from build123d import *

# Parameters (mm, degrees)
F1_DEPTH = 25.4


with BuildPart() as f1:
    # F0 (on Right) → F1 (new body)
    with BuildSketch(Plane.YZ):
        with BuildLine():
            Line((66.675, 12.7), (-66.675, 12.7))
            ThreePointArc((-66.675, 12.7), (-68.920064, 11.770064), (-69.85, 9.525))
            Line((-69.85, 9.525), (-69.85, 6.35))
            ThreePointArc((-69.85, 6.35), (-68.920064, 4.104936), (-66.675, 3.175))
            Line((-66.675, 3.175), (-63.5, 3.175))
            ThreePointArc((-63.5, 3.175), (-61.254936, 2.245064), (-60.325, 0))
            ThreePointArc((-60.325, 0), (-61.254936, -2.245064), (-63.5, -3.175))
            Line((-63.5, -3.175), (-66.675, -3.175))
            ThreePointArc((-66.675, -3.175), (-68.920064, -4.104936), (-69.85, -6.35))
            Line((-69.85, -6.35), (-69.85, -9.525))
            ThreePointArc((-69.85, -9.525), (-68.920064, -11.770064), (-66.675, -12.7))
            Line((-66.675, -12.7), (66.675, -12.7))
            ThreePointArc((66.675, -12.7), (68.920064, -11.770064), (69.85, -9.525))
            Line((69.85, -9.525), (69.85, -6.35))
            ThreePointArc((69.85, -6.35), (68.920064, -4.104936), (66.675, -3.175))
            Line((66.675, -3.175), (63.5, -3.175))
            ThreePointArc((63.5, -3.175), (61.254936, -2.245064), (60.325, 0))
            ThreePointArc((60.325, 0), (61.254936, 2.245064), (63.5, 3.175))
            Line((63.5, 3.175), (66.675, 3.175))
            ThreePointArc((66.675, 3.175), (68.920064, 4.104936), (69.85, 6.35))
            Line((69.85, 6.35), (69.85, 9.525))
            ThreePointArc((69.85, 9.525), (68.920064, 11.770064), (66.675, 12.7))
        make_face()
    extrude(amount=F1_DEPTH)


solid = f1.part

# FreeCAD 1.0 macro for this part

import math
import FreeCAD as App
import Part
import Sketcher
Q = App.Units.Quantity

doc = App.newDocument("Part")
body = doc.addObject("PartDesign::Body", "Body")

# Sketch on YZ plane
sketch1 = doc.addObject("Sketcher::SketchObject", "Sketch")
body.addObject(sketch1)
sketch1.AttachmentSupport = (doc.YZ_Plane, [""])
sketch1.MapMode = "FlatFace"
sketch1.addGeometry([
    Part.LineSegment(App.Vector(66.7, 12.7, 0), App.Vector(-66.7, 12.7, 0)),  # 0
    Part.ArcOfCircle(Part.Circle(App.Vector(-66.7, 9.5, 0), App.Vector(0, 0, 1), 3.2), math.radians(90), math.radians(180)),  # 1
    Part.LineSegment(App.Vector(-69.8, 9.5, 0), App.Vector(-69.8, 6.3, 0)),  # 2
    Part.ArcOfCircle(Part.Circle(App.Vector(-66.7, 6.4, 0), App.Vector(0, 0, 1), 3.2), math.radians(-180), math.radians(-90)),  # 3
    Part.LineSegment(App.Vector(-66.7, 3.2, 0), App.Vector(-63.5, 3.2, 0)),  # 4
    Part.ArcOfCircle(Part.Circle(App.Vector(-63.5, 0, 0), App.Vector(0, 0, 1), 3.2), math.radians(0), math.radians(90)),  # 5
    Part.ArcOfCircle(Part.Circle(App.Vector(-63.5, 0, 0), App.Vector(0, 0, 1), 3.2), math.radians(-90), math.radians(0)),  # 6
    Part.LineSegment(App.Vector(-63.5, -3.2, 0), App.Vector(-66.7, -3.2, 0)),  # 7
    Part.ArcOfCircle(Part.Circle(App.Vector(-66.7, -6.4, 0), App.Vector(0, 0, 1), 3.2), math.radians(90), math.radians(180)),  # 8
    Part.LineSegment(App.Vector(-69.8, -6.3, 0), App.Vector(-69.8, -9.5, 0)),  # 9
    Part.ArcOfCircle(Part.Circle(App.Vector(-66.7, -9.5, 0), App.Vector(0, 0, 1), 3.2), math.radians(-180), math.radians(-90)),  # 10
    Part.LineSegment(App.Vector(-66.7, -12.7, 0), App.Vector(66.7, -12.7, 0)),  # 11
    Part.ArcOfCircle(Part.Circle(App.Vector(66.7, -9.5, 0), App.Vector(0, 0, 1), 3.2), math.radians(-90), math.radians(0)),  # 12
    Part.LineSegment(App.Vector(69.8, -9.5, 0), App.Vector(69.8, -6.3, 0)),  # 13
    Part.ArcOfCircle(Part.Circle(App.Vector(66.7, -6.4, 0), App.Vector(0, 0, 1), 3.2), math.radians(0), math.radians(90)),  # 14
    Part.LineSegment(App.Vector(66.7, -3.2, 0), App.Vector(63.5, -3.2, 0)),  # 15
    Part.ArcOfCircle(Part.Circle(App.Vector(63.5, 0, 0), App.Vector(0, 0, 1), 3.2), math.radians(-180), math.radians(-90)),  # 16
    Part.ArcOfCircle(Part.Circle(App.Vector(63.5, 0, 0), App.Vector(0, 0, 1), 3.2), math.radians(90), math.radians(180)),  # 17
    Part.LineSegment(App.Vector(63.5, 3.2, 0), App.Vector(66.7, 3.2, 0)),  # 18
    Part.ArcOfCircle(Part.Circle(App.Vector(66.7, 6.4, 0), App.Vector(0, 0, 1), 3.2), math.radians(-90), math.radians(0)),  # 19
    Part.LineSegment(App.Vector(69.8, 6.3, 0), App.Vector(69.8, 9.5, 0)),  # 20
    Part.ArcOfCircle(Part.Circle(App.Vector(66.7, 9.5, 0), App.Vector(0, 0, 1), 3.2), math.radians(0), math.radians(90)),  # 21
], False)
sketch1.addConstraint([
    Sketcher.Constraint("Tangent", 0, 2, 1, 1),
    Sketcher.Constraint("Tangent", 1, 2, 2, 1),
    Sketcher.Constraint("Tangent", 2, 2, 3, 1),
    Sketcher.Constraint("Tangent", 3, 2, 4, 1),
    Sketcher.Constraint("Tangent", 4, 2, 5, 2),
    Sketcher.Constraint("Tangent", 5, 1, 6, 2),
    Sketcher.Constraint("Tangent", 6, 1, 7, 1),
    Sketcher.Constraint("Tangent", 7, 2, 8, 1),
    Sketcher.Constraint("Tangent", 8, 2, 9, 1),
    Sketcher.Constraint("Tangent", 9, 2, 10, 1),
    Sketcher.Constraint("Tangent", 10, 2, 11, 1),
    Sketcher.Constraint("Tangent", 11, 2, 12, 1),
    Sketcher.Constraint("Tangent", 12, 2, 13, 1),
    Sketcher.Constraint("Tangent", 13, 2, 14, 1),
    Sketcher.Constraint("Tangent", 14, 2, 15, 1),
    Sketcher.Constraint("Tangent", 15, 2, 16, 2),
    Sketcher.Constraint("Tangent", 16, 1, 17, 2),
    Sketcher.Constraint("Tangent", 17, 1, 18, 1),
    Sketcher.Constraint("Tangent", 18, 2, 19, 1),
    Sketcher.Constraint("Tangent", 19, 2, 20, 1),
    Sketcher.Constraint("Tangent", 20, 2, 21, 1),
    Sketcher.Constraint("Tangent", 21, 2, 0, 1),
    Sketcher.Constraint("Horizontal", 0),
    Sketcher.Constraint("Vertical", 2),
    Sketcher.Constraint("Horizontal", 4),
    Sketcher.Constraint("Horizontal", 7),
    Sketcher.Constraint("Vertical", 9),
    Sketcher.Constraint("Horizontal", 11),
    Sketcher.Constraint("Vertical", 13),
    Sketcher.Constraint("Horizontal", 15),
    Sketcher.Constraint("Horizontal", 18),
    Sketcher.Constraint("Vertical", 20),
    Sketcher.Constraint("Equal", 1, 3),
    Sketcher.Constraint("Equal", 3, 5),
    Sketcher.Constraint("Equal", 5, 6),
    Sketcher.Constraint("Equal", 6, 8),
    Sketcher.Constraint("Equal", 8, 10),
    Sketcher.Constraint("Equal", 10, 12),
    Sketcher.Constraint("Equal", 12, 14),
    Sketcher.Constraint("Equal", 14, 16),
    Sketcher.Constraint("Equal", 16, 17),
    Sketcher.Constraint("Equal", 17, 19),
    Sketcher.Constraint("Equal", 19, 21),
    Sketcher.Constraint("Symmetric", 1, 3, 12, 3, -1, 1),
    Sketcher.Constraint("Symmetric", 5, 3, 16, 3, -1, 1),
    Sketcher.Constraint("Symmetric", 8, 3, 14, 3, -2),
    Sketcher.Constraint("PointOnObject", 5, 1, -1),
    Sketcher.Constraint("PointOnObject", 16, 1, -1),
    Sketcher.Constraint("Vertical", 14, 3, 19, 3),
    Sketcher.Constraint("Equal", 18, 2),
    Sketcher.Constraint("Radius", 1, Q("0.125 in")),
    Sketcher.Constraint("DistanceX", 5, 3, 16, 3, Q("5 in")),
    Sketcher.Constraint("DistanceX", 0, 2, 0, 1, Q("5.25 in")),
])
pad1 = doc.addObject("PartDesign::Pad", "Pad")
body.addObject(pad1)
pad1.Profile = sketch1
pad1.Length = Q("1 in")

doc.recompute()
